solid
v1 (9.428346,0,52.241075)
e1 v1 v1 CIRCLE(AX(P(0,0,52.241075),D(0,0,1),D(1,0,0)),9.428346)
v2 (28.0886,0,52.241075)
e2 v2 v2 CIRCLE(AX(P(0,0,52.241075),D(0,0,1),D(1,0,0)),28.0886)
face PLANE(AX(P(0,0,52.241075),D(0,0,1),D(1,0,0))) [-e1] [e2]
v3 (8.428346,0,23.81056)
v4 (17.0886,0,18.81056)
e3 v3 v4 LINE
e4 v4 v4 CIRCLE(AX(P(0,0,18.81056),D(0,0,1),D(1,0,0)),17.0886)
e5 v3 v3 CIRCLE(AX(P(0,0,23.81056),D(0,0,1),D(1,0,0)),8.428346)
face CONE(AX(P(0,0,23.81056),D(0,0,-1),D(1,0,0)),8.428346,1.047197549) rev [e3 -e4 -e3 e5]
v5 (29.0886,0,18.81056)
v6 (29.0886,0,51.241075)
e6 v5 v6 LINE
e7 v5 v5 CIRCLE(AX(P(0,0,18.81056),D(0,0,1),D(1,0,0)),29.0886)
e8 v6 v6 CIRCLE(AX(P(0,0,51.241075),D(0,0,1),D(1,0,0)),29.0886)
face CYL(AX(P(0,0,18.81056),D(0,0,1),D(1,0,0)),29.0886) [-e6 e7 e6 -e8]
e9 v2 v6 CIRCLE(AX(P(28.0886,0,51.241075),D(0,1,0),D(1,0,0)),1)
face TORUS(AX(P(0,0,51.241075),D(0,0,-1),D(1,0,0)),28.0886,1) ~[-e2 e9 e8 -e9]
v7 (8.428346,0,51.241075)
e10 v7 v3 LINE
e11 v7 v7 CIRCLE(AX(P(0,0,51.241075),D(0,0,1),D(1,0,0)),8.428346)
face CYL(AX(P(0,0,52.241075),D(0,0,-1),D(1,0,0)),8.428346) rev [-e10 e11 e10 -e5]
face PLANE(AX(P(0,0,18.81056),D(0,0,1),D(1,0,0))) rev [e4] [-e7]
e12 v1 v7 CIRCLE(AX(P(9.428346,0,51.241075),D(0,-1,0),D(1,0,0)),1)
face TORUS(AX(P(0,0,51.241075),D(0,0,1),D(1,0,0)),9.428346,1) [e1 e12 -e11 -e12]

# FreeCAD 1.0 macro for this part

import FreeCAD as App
import Part
import Sketcher
Q = App.Units.Quantity


def edges_at(feature, points):
    """Names of the edges that pass closest to the given points."""
    edges = feature.Shape.Edges
    near = lambda p: min(range(len(edges)), key=lambda i: edges[i].distToShape(Part.Vertex(*p))[0])
    return sorted({f"Edge{near(p) + 1}" for p in points})

doc = App.newDocument("Part")
params = doc.addObject("Spreadsheet::Sheet", "Params")
for row, (alias, value) in enumerate([
    ("sketch1_width", "12 mm"),
    ("sketch1_length", "10 mm"),
    ("revolution_angle", "360 deg"),
    ("fillet_radius", "1 mm"),
], start=1):
    params.set(f"A{row}", alias)
    params.set(f"B{row}", "=" + value)
    params.setAlias(f"B{row}", alias)

body = doc.addObject("PartDesign::Body", "Body")

sketch1 = body.newObject("Sketcher::SketchObject", "Sketch")
sketch1.AttachmentSupport = (doc.getObject("XZ_Plane"), [""])
sketch1.MapMode = "FlatFace"
sketch1.addGeometry(Part.LineSegment(App.Vector(29, 52, 0), App.Vector(8, 52, 0)), False)
sketch1.addGeometry(Part.LineSegment(App.Vector(8, 52, 0), App.Vector(8, 24, 0)), False)
sketch1.addGeometry(Part.LineSegment(App.Vector(8, 24, 0), App.Vector(17, 19, 0)), False)
sketch1.addGeometry(Part.LineSegment(App.Vector(17, 19, 0), App.Vector(29, 19, 0)), False)
sketch1.addGeometry(Part.LineSegment(App.Vector(29, 19, 0), App.Vector(29, 52, 0)), False)
sketch1.addConstraint(Sketcher.Constraint("Coincident", 0, 2, 1, 1))
sketch1.addConstraint(Sketcher.Constraint("Coincident", 1, 2, 2, 1))
sketch1.addConstraint(Sketcher.Constraint("Coincident", 2, 2, 3, 1))
sketch1.addConstraint(Sketcher.Constraint("Coincident", 3, 2, 4, 1))
sketch1.addConstraint(Sketcher.Constraint("Coincident", 4, 2, 0, 1))
sketch1.addConstraint(Sketcher.Constraint("Horizontal", 0))
sketch1.addConstraint(Sketcher.Constraint("Vertical", 1))
sketch1.addConstraint(Sketcher.Constraint("Horizontal", 3))
sketch1.addConstraint(Sketcher.Constraint("Vertical", 4))
sketch1.addConstraint(Sketcher.Constraint("DistanceX", 3, 1, 3, 2, Q("12 mm")))
sketch1.addConstraint(Sketcher.Constraint("Angle", 2, Q("-30 deg")))
sketch1.addConstraint(Sketcher.Constraint("Distance", 2, Q("10 mm")))
sketch1.addConstraint(Sketcher.Constraint("DistanceX", -1, 1, 2, 2, Q("17.0886 mm")))
sketch1.addConstraint(Sketcher.Constraint("DistanceY", 1, 2, 1, 1, Q("28.430515 mm")))
sketch1.addConstraint(Sketcher.Constraint("DistanceY", -1, 1, 1, 2, Q("23.81056 mm")))
sketch1.setExpression("Constraints[9]", "Params.sketch1_width")
sketch1.setExpression("Constraints[11]", "Params.sketch1_length")
revolution = body.newObject("PartDesign::Revolution", "Revolution")
revolution.Profile = sketch1
revolution.ReferenceAxis = (sketch1, ["V_Axis"])
revolution.setExpression("Angle", "Params.revolution_angle")
doc.recompute()

fillet = body.newObject("PartDesign::Fillet", "Fillet")
fillet.Base = (revolution, edges_at(revolution, [(-29.089, 0, 52.241), (-8.428, 0, 52.241)]))
fillet.setExpression("Radius", "Params.fillet_radius")

doc.recompute()
